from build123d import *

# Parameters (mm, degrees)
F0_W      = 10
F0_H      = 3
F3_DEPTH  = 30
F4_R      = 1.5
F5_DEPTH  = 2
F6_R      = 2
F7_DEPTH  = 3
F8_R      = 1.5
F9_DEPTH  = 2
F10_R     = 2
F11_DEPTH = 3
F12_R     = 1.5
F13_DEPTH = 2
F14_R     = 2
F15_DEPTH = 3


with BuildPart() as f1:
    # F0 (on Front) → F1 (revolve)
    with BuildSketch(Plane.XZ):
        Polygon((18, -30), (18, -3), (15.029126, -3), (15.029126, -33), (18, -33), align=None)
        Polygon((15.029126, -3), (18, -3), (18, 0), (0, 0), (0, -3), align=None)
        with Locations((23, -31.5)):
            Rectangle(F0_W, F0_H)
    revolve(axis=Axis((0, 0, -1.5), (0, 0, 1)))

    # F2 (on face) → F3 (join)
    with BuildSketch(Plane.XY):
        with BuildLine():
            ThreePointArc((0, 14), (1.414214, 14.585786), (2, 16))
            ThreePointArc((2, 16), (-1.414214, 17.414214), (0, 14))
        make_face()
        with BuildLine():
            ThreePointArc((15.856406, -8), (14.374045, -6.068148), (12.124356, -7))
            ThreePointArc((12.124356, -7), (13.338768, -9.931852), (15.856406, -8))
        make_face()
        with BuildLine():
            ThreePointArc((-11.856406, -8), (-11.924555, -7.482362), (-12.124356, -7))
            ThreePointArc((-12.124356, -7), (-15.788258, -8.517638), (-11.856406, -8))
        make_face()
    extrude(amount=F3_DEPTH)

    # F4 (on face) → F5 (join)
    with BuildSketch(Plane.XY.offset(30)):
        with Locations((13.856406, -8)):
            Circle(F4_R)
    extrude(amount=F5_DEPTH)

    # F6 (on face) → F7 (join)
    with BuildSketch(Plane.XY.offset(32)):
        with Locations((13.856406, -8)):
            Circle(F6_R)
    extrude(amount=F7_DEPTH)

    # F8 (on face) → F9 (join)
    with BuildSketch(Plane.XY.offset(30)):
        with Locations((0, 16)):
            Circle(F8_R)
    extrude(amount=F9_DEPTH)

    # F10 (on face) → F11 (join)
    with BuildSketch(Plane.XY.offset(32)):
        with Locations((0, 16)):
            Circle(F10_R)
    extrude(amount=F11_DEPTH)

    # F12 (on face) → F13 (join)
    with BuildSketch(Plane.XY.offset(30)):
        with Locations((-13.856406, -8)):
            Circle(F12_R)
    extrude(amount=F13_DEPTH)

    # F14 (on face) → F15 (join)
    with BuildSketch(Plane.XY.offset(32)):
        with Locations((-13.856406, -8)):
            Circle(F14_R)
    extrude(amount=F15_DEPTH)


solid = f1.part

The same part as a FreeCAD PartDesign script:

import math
import FreeCAD as App
import Part
import Sketcher

V = App.Vector
Q = App.Units.Quantity


def add_polygon(sketch, points):
    """Adds a closed chain of lines whose ends are joined by coincident constraints."""
    first, n = sketch.GeometryCount, len(points)
    for a, b in zip(points, points[1:] + points[:1]):
        sketch.addGeometry(Part.LineSegment(App.Vector(*a, 0), App.Vector(*b, 0)), False)
    for i in range(n):
        sketch.addConstraint(Sketcher.Constraint("Coincident", first + i, 2, first + (i + 1) % n, 1))

doc = App.newDocument("Part")
body = doc.addObject("PartDesign::Body", "Body")

# Sketch on XZ plane
sketch1 = body.newObject("Sketcher::SketchObject", "Sketch")
sketch1.AttachmentSupport = (doc.getObject("XZ_Plane"), [""])
sketch1.MapMode = "FlatFace"
add_polygon(sketch1, [(15, -3), (15, -33), (28, -33), (28, -30), (18, -30), (18, 0), (0, 0), (0, -3)])  # lines 0-7
sketch1.addConstraint([
    Sketcher.Constraint("Vertical", 0),
    Sketcher.Constraint("Horizontal", 1),
    Sketcher.Constraint("Vertical", 2),
    Sketcher.Constraint("Horizontal", 3),
    Sketcher.Constraint("Vertical", 4),
    Sketcher.Constraint("Horizontal", 5),
    Sketcher.Constraint("Vertical", 6),
    Sketcher.Constraint("Horizontal", 7),
    Sketcher.Constraint("Coincident", 5, 2, -1, 1),
    Sketcher.Constraint("Equal", 0, 4),
    Sketcher.Constraint("DistanceX", 3, 2, 3, 1, Q("10 mm")),
    Sketcher.Constraint("DistanceX", 5, 2, 5, 1, Q("18 mm")),
    Sketcher.Constraint("DistanceY", 0, 2, 0, 1, Q("30 mm")),
    Sketcher.Constraint("DistanceY", 2, 1, 2, 2, Q("3 mm")),
    Sketcher.Constraint("DistanceX", 1, 1, 1, 2, Q("12.970874 mm")),
])
revolution = body.newObject("PartDesign::Revolution", "Revolution")
revolution.Profile = sketch1
revolution.ReferenceAxis = (sketch1, ["V_Axis"])
revolution.Angle = 360

# Sketch on XY plane
sketch2 = body.newObject("Sketcher::SketchObject", "Sketch001")
sketch2.AttachmentSupport = (doc.getObject("XY_Plane"), [""])
sketch2.MapMode = "FlatFace"
sketch2.addGeometry([
    Part.ArcOfCircle(Part.Circle(V(0, 16, 0), V(0, 0, 1), 2), math.radians(-90), math.radians(0)),  # 0
    Part.ArcOfCircle(Part.Circle(V(0, 16, 0), V(0, 0, 1), 2), math.radians(0), math.radians(270)),  # 1
    Part.ArcOfCircle(Part.Circle(V(13.9, -8, 0), V(0, 0, 1), 2), math.radians(0), math.radians(150)),  # 2
    Part.ArcOfCircle(Part.Circle(V(13.9, -8, 0), V(0, 0, 1), 2), math.radians(150), math.radians(360)),  # 3
    Part.ArcOfCircle(Part.Circle(V(-13.9, -8, 0), V(0, 0, 1), 2), math.radians(0), math.radians(30)),  # 4
    Part.ArcOfCircle(Part.Circle(V(-13.9, -8, 0), V(0, 0, 1), 2), math.radians(30), math.radians(360)),  # 5
], False)
sketch2.addConstraint([
    Sketcher.Constraint("Tangent", 0, 1, 1, 2),
    Sketcher.Constraint("Coincident", 1, 1, 0, 2),
    Sketcher.Constraint("Tangent", 2, 1, 3, 2),
    Sketcher.Constraint("Coincident", 3, 1, 2, 2),
    Sketcher.Constraint("Tangent", 4, 1, 5, 2),
    Sketcher.Constraint("Coincident", 5, 1, 4, 2),
    Sketcher.Constraint("Equal", 1, 2),
    Sketcher.Constraint("Equal", 3, 5),
    Sketcher.Constraint("Symmetric", 2, 3, 4, 3, -2),
    Sketcher.Constraint("PointOnObject", 0, 3, -2),
    Sketcher.Constraint("PointOnObject", 0, 1, -2),
    Sketcher.Constraint("Horizontal", 0, 3, 1, 1),
    Sketcher.Constraint("Horizontal", 5, 3, 2, 1),
    Sketcher.Constraint("Horizontal", 2, 1, 4, 1),
    Sketcher.Constraint("Horizontal", 3, 1, 5, 1),
    Sketcher.Constraint("Radius", 0, Q("1.999999 mm")),
    Sketcher.Constraint("DistanceY", -1, 1, 0, 3, Q("15.999999 mm")),
    Sketcher.Constraint("DistanceY", 2, 3, -1, 1, Q("7.999999 mm")),
    Sketcher.Constraint("DistanceY", 3, 1, -1, 1, Q("7 mm")),
    Sketcher.Constraint("DistanceX", 4, 3, 3, 3, Q("27.71282 mm")),
])
pad1 = body.newObject("PartDesign::Pad", "Pad")
pad1.Profile = sketch2
pad1.Length = 30

# Sketch on XY plane
sketch3 = body.newObject("Sketcher::SketchObject", "Sketch002")
sketch3.AttachmentSupport = (doc.getObject("XY_Plane"), [""])
sketch3.MapMode = "FlatFace"
sketch3.AttachmentOffset = App.Placement(V(0, 0, 30), App.Rotation())
sketch3.addGeometry(Part.Circle(V(13.9, -8, 0), V(0, 0, 1), 1.5), False)
sketch3.addConstraint([
    Sketcher.Constraint("Diameter", 0, Q("3 mm")),
    Sketcher.Constraint("DistanceY", 0, 3, -1, 1, Q("8 mm")),
    Sketcher.Constraint("DistanceX", -1, 1, 0, 3, Q("13.856406 mm")),
])
pad2 = body.newObject("PartDesign::Pad", "Pad001")
pad2.Profile = sketch3
pad2.Length = 2

# Sketch on XY plane
sketch4 = body.newObject("Sketcher::SketchObject", "Sketch003")
sketch4.AttachmentSupport = (doc.getObject("XY_Plane"), [""])
sketch4.MapMode = "FlatFace"
sketch4.AttachmentOffset = App.Placement(V(0, 0, 32), App.Rotation())
sketch4.addGeometry(Part.Circle(V(13.9, -8, 0), V(0, 0, 1), 2), False)
sketch4.addConstraint([
    Sketcher.Constraint("Diameter", 0, Q("4 mm")),
    Sketcher.Constraint("DistanceY", 0, 3, -1, 1, Q("8 mm")),
    Sketcher.Constraint("DistanceX", -1, 1, 0, 3, Q("13.856406 mm")),
])
pad3 = body.newObject("PartDesign::Pad", "Pad002")
pad3.Profile = sketch4
pad3.Length = 3

# Sketch on XY plane
sketch5 = body.newObject("Sketcher::SketchObject", "Sketch004")
sketch5.AttachmentSupport = (doc.getObject("XY_Plane"), [""])
sketch5.MapMode = "FlatFace"
sketch5.AttachmentOffset = App.Placement(V(0, 0, 30), App.Rotation())
sketch5.addGeometry(Part.Circle(V(0, 16, 0), V(0, 0, 1), 1.5), False)
sketch5.addConstraint([
    Sketcher.Constraint("PointOnObject", 0, 3, -2),
    Sketcher.Constraint("Diameter", 0, Q("3 mm")),
    Sketcher.Constraint("DistanceY", -1, 1, 0, 3, Q("16 mm")),
])
pad4 = body.newObject("PartDesign::Pad", "Pad003")
pad4.Profile = sketch5
pad4.Length = 2

# Sketch on XY plane
sketch6 = body.newObject("Sketcher::SketchObject", "Sketch005")
sketch6.AttachmentSupport = (doc.getObject("XY_Plane"), [""])
sketch6.MapMode = "FlatFace"
sketch6.AttachmentOffset = App.Placement(V(0, 0, 32), App.Rotation())
sketch6.addGeometry(Part.Circle(V(0, 16, 0), V(0, 0, 1), 2), False)
sketch6.addConstraint([
    Sketcher.Constraint("PointOnObject", 0, 3, -2),
    Sketcher.Constraint("Diameter", 0, Q("4 mm")),
    Sketcher.Constraint("DistanceY", -1, 1, 0, 3, Q("16 mm")),
])
pad5 = body.newObject("PartDesign::Pad", "Pad004")
pad5.Profile = sketch6
pad5.Length = 3

# Sketch on XY plane
sketch7 = body.newObject("Sketcher::SketchObject", "Sketch006")
sketch7.AttachmentSupport = (doc.getObject("XY_Plane"), [""])
sketch7.MapMode = "FlatFace"
sketch7.AttachmentOffset = App.Placement(V(0, 0, 30), App.Rotation())
sketch7.addGeometry(Part.Circle(V(-13.9, -8, 0), V(0, 0, 1), 1.5), False)
sketch7.addConstraint([
    Sketcher.Constraint("Diameter", 0, Q("3 mm")),
    Sketcher.Constraint("DistanceY", 0, 3, -1, 1, Q("8 mm")),
    Sketcher.Constraint("DistanceX", 0, 3, -1, 1, Q("13.856406 mm")),
])
pad6 = body.newObject("PartDesign::Pad", "Pad005")
pad6.Profile = sketch7
pad6.Length = 2

# Sketch on XY plane
sketch8 = body.newObject("Sketcher::SketchObject", "Sketch007")
sketch8.AttachmentSupport = (doc.getObject("XY_Plane"), [""])
sketch8.MapMode = "FlatFace"
sketch8.AttachmentOffset = App.Placement(V(0, 0, 32), App.Rotation())
sketch8.addGeometry(Part.Circle(V(-13.9, -8, 0), V(0, 0, 1), 2), False)
sketch8.addConstraint([
    Sketcher.Constraint("Diameter", 0, Q("4 mm")),
    Sketcher.Constraint("DistanceY", 0, 3, -1, 1, Q("8 mm")),
    Sketcher.Constraint("DistanceX", 0, 3, -1, 1, Q("13.856406 mm")),
])
pad7 = body.newObject("PartDesign::Pad", "Pad006")
pad7.Profile = sketch8
pad7.Length = 3

doc.recompute()
